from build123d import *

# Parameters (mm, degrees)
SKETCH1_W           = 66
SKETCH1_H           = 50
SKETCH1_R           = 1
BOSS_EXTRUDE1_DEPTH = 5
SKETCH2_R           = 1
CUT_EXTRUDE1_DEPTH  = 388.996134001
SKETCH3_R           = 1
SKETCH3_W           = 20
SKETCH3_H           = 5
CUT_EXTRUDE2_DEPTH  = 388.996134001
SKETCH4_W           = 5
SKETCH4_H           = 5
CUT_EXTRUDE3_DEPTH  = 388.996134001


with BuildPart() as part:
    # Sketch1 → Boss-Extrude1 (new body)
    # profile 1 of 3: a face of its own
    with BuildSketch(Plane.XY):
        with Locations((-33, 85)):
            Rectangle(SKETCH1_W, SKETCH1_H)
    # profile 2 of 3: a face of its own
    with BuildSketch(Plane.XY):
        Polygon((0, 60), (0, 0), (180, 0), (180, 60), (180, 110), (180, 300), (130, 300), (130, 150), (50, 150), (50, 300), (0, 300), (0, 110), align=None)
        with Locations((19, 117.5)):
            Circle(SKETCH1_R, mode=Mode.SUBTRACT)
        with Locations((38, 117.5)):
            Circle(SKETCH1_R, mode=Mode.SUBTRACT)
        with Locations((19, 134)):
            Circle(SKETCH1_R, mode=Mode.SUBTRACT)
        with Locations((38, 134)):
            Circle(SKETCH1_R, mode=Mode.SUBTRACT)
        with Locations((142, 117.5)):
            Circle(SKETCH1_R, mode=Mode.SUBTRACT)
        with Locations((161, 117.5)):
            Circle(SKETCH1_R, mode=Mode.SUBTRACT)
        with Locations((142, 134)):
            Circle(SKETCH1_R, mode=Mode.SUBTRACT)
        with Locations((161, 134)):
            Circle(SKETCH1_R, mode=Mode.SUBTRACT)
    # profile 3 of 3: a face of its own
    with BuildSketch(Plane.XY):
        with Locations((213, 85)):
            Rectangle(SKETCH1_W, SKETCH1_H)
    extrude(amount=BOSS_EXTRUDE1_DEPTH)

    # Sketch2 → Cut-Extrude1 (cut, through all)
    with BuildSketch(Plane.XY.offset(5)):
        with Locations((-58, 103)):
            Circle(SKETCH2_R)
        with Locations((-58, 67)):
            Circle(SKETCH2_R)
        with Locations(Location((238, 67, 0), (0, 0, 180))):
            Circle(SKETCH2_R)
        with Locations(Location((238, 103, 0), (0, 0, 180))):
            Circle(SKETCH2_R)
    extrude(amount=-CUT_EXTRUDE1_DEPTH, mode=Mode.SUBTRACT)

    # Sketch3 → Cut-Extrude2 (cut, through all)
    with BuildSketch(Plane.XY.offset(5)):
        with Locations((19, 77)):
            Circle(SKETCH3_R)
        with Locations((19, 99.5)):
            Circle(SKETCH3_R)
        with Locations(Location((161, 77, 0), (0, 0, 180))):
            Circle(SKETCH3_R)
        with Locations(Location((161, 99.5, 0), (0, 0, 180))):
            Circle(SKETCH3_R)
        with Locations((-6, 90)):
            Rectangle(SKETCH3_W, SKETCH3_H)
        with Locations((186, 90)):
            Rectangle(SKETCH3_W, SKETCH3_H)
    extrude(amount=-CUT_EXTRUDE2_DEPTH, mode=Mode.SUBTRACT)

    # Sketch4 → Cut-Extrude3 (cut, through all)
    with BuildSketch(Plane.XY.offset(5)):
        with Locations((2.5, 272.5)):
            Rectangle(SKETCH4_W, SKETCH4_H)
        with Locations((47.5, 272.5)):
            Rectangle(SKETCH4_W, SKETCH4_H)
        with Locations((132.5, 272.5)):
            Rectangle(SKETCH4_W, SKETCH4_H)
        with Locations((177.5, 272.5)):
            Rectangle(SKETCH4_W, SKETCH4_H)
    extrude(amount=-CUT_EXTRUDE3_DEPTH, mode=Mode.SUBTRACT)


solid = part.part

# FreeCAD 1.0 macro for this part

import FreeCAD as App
import Part
import Sketcher
Q = App.Units.Quantity

doc = App.newDocument("Part")
body = doc.addObject("PartDesign::Body", "Body")

sketch1 = body.newObject("Sketcher::SketchObject", "Sketch")
sketch1.AttachmentSupport = (doc.getObject("XY_Plane"), [""])
sketch1.MapMode = "FlatFace"
sketch1.addGeometry([
    Part.LineSegment(App.Vector(-66, 110, 0), App.Vector(-66, 60, 0)),
    Part.LineSegment(App.Vector(-66, 60, 0), App.Vector(0, 60, 0)),
    Part.LineSegment(App.Vector(0, 60, 0), App.Vector(0, 0, 0)),
    Part.LineSegment(App.Vector(0, 0, 0), App.Vector(180, 0, 0)),
    Part.LineSegment(App.Vector(180, 0, 0), App.Vector(180, 60, 0)),
    Part.LineSegment(App.Vector(180, 60, 0), App.Vector(246, 60, 0)),
    Part.LineSegment(App.Vector(246, 60, 0), App.Vector(246, 110, 0)),
    Part.LineSegment(App.Vector(246, 110, 0), App.Vector(180, 110, 0)),
    Part.LineSegment(App.Vector(180, 110, 0), App.Vector(180, 300, 0)),
    Part.LineSegment(App.Vector(180, 300, 0), App.Vector(130, 300, 0)),
    Part.LineSegment(App.Vector(130, 300, 0), App.Vector(130, 150, 0)),
    Part.LineSegment(App.Vector(130, 150, 0), App.Vector(50, 150, 0)),
    Part.LineSegment(App.Vector(50, 150, 0), App.Vector(50, 300, 0)),
    Part.LineSegment(App.Vector(50, 300, 0), App.Vector(0, 300, 0)),
    Part.LineSegment(App.Vector(0, 300, 0), App.Vector(0, 110, 0)),
    Part.LineSegment(App.Vector(0, 110, 0), App.Vector(-66, 110, 0)),
    Part.Circle(App.Vector(161, 134, 0), App.Vector(0, 0, 1), 1),
    Part.Circle(App.Vector(19, 117.5, 0), App.Vector(0, 0, 1), 1),
    Part.Circle(App.Vector(38, 117.5, 0), App.Vector(0, 0, 1), 1),
    Part.Circle(App.Vector(142, 117.5, 0), App.Vector(0, 0, 1), 1),
    Part.Circle(App.Vector(161, 117.5, 0), App.Vector(0, 0, 1), 1),
    Part.Circle(App.Vector(19, 134, 0), App.Vector(0, 0, 1), 1),
    Part.Circle(App.Vector(38, 134, 0), App.Vector(0, 0, 1), 1),
    Part.Circle(App.Vector(142, 134, 0), App.Vector(0, 0, 1), 1),
], False)
sketch1.addConstraint([
    Sketcher.Constraint("Coincident", 0, 2, 1, 1),
    Sketcher.Constraint("Coincident", 1, 2, 2, 1),
    Sketcher.Constraint("Coincident", 2, 2, 3, 1),
    Sketcher.Constraint("Coincident", 3, 2, 4, 1),
    Sketcher.Constraint("Coincident", 4, 2, 5, 1),
    Sketcher.Constraint("Coincident", 5, 2, 6, 1),
    Sketcher.Constraint("Coincident", 6, 2, 7, 1),
    Sketcher.Constraint("Coincident", 7, 2, 8, 1),
    Sketcher.Constraint("Coincident", 8, 2, 9, 1),
    Sketcher.Constraint("Coincident", 9, 2, 10, 1),
    Sketcher.Constraint("Coincident", 10, 2, 11, 1),
    Sketcher.Constraint("Coincident", 11, 2, 12, 1),
    Sketcher.Constraint("Coincident", 12, 2, 13, 1),
    Sketcher.Constraint("Coincident", 13, 2, 14, 1),
    Sketcher.Constraint("Coincident", 14, 2, 15, 1),
    Sketcher.Constraint("Coincident", 15, 2, 0, 1),
    Sketcher.Constraint("Vertical", 0),
    Sketcher.Constraint("Horizontal", 1),
    Sketcher.Constraint("Vertical", 2),
    Sketcher.Constraint("Horizontal", 3),
    Sketcher.Constraint("Vertical", 4),
    Sketcher.Constraint("Horizontal", 5),
    Sketcher.Constraint("Vertical", 6),
    Sketcher.Constraint("Horizontal", 7),
    Sketcher.Constraint("Vertical", 8),
    Sketcher.Constraint("Horizontal", 9),
    Sketcher.Constraint("Vertical", 10),
    Sketcher.Constraint("Horizontal", 11),
    Sketcher.Constraint("Vertical", 12),
    Sketcher.Constraint("Horizontal", 13),
    Sketcher.Constraint("Vertical", 14),
    Sketcher.Constraint("Horizontal", 15),
    Sketcher.Constraint("Coincident", 2, 2, -1, 1),
    Sketcher.Constraint("Equal", 16, 17),
    Sketcher.Constraint("Equal", 17, 18),
    Sketcher.Constraint("Equal", 18, 19),
    Sketcher.Constraint("Equal", 19, 20),
    Sketcher.Constraint("Equal", 20, 21),
    Sketcher.Constraint("Equal", 21, 22),
    Sketcher.Constraint("Equal", 22, 23),
    Sketcher.Constraint("PointOnObject", 13, 2, -2),
    Sketcher.Constraint("Horizontal", 17, 3, 18, 3),
    Sketcher.Constraint("Horizontal", 18, 3, 19, 3),
    Sketcher.Constraint("Horizontal", 19, 3, 20, 3),
    Sketcher.Constraint("Horizontal", 16, 3, 21, 3),
    Sketcher.Constraint("Horizontal", 21, 3, 22, 3),
    Sketcher.Constraint("Horizontal", 22, 3, 23, 3),
    Sketcher.Constraint("Horizontal", 1, 2, 4, 2),
    Sketcher.Constraint("Horizontal", 9, 2, 12, 2),
    Sketcher.Constraint("Horizontal", 7, 2, 14, 2),
    Sketcher.Constraint("Vertical", 16, 3, 20, 3),
    Sketcher.Constraint("Vertical", 17, 3, 21, 3),
    Sketcher.Constraint("Vertical", 18, 3, 22, 3),
    Sketcher.Constraint("Vertical", 19, 3, 23, 3),
    Sketcher.Constraint("Vertical", 4, 2, 7, 2),
    Sketcher.Constraint("Equal", 1, 5),
    Sketcher.Constraint("Equal", 9, 13),
    Sketcher.Constraint("Equal", 13, 0),
    Sketcher.Constraint("Diameter", 16, Q("2 mm")),
    Sketcher.Constraint("DistanceX", 1, 1, 1, 2, Q("66 mm")),
    Sketcher.Constraint("DistanceX", 3, 1, 3, 2, Q("180 mm")),
    Sketcher.Constraint("DistanceX", 9, 2, 9, 1, Q("50 mm")),
    Sketcher.Constraint("DistanceY", 2, 2, 2, 1, Q("60 mm")),
    Sketcher.Constraint("DistanceY", 8, 1, 8, 2, Q("190 mm")),
    Sketcher.Constraint("DistanceY", 10, 2, 10, 1, Q("150 mm")),
    Sketcher.Constraint("DistanceX", -1, 1, 16, 3, Q("161 mm")),
    Sketcher.Constraint("DistanceY", -1, 1, 16, 3, Q("134 mm")),
    Sketcher.Constraint("DistanceX", -1, 1, 17, 3, Q("19 mm")),
    Sketcher.Constraint("DistanceX", -1, 1, 18, 3, Q("38 mm")),
    Sketcher.Constraint("DistanceX", -1, 1, 19, 3, Q("142 mm")),
    Sketcher.Constraint("DistanceY", -1, 1, 17, 3, Q("117.5 mm")),
])
pad1 = body.newObject("PartDesign::Pad", "Pad")
pad1.Profile = sketch1
pad1.Length = 5

sketch2 = body.newObject("Sketcher::SketchObject", "Sketch001")
sketch2.AttachmentSupport = (doc.getObject("XY_Plane"), [""])
sketch2.MapMode = "FlatFace"
sketch2.AttachmentOffset = App.Placement(App.Vector(0, 0, 5), App.Rotation())
sketch2.addGeometry([
    Part.Circle(App.Vector(-58, 103, 0), App.Vector(0, 0, 1), 1),
    Part.Circle(App.Vector(-58, 67, 0), App.Vector(0, 0, 1), 1),
    Part.Circle(App.Vector(238, 67, 0), App.Vector(0, 0, 1), 1),
    Part.Circle(App.Vector(238, 103, 0), App.Vector(0, 0, 1), 1),
], False)
sketch2.addConstraint([
    Sketcher.Constraint("Equal", 0, 1),
    Sketcher.Constraint("Equal", 1, 2),
    Sketcher.Constraint("Equal", 2, 3),
    Sketcher.Constraint("Horizontal", 1, 3, 2, 3),
    Sketcher.Constraint("Horizontal", 0, 3, 3, 3),
    Sketcher.Constraint("Vertical", 0, 3, 1, 3),
    Sketcher.Constraint("Vertical", 2, 3, 3, 3),
    Sketcher.Constraint("Diameter", 0, Q("2 mm")),
    Sketcher.Constraint("DistanceX", 0, 3, -1, 1, Q("58 mm")),
    Sketcher.Constraint("DistanceY", -1, 1, 0, 3, Q("103 mm")),
    Sketcher.Constraint("DistanceY", -1, 1, 1, 3, Q("67 mm")),
    Sketcher.Constraint("DistanceX", -1, 1, 2, 3, Q("238 mm")),
])
pocket1 = body.newObject("PartDesign::Pocket", "Pocket")
pocket1.Profile = sketch2
pocket1.Type = "ThroughAll"

sketch3 = body.newObject("Sketcher::SketchObject", "Sketch002")
sketch3.AttachmentSupport = (doc.getObject("XY_Plane"), [""])
sketch3.MapMode = "FlatFace"
sketch3.AttachmentOffset = App.Placement(App.Vector(0, 0, 5), App.Rotation())
sketch3.addGeometry([
    Part.Circle(App.Vector(19, 77, 0), App.Vector(0, 0, 1), 1),
    Part.Circle(App.Vector(19, 99.5, 0), App.Vector(0, 0, 1), 1),
    Part.Circle(App.Vector(161, 77, 0), App.Vector(0, 0, 1), 1),
    Part.Circle(App.Vector(161, 99.5, 0), App.Vector(0, 0, 1), 1),
    Part.LineSegment(App.Vector(-16, 92.5, 0), App.Vector(-16, 87.5, 0)),
    Part.LineSegment(App.Vector(-16, 87.5, 0), App.Vector(4, 87.5, 0)),
    Part.LineSegment(App.Vector(4, 87.5, 0), App.Vector(4, 92.5, 0)),
    Part.LineSegment(App.Vector(4, 92.5, 0), App.Vector(-16, 92.5, 0)),
    Part.LineSegment(App.Vector(176, 92.5, 0), App.Vector(176, 87.5, 0)),
    Part.LineSegment(App.Vector(176, 87.5, 0), App.Vector(196, 87.5, 0)),
    Part.LineSegment(App.Vector(196, 87.5, 0), App.Vector(196, 92.5, 0)),
    Part.LineSegment(App.Vector(196, 92.5, 0), App.Vector(176, 92.5, 0)),
], False)
sketch3.addConstraint([
    Sketcher.Constraint("Coincident", 4, 2, 5, 1),
    Sketcher.Constraint("Coincident", 5, 2, 6, 1),
    Sketcher.Constraint("Coincident", 6, 2, 7, 1),
    Sketcher.Constraint("Coincident", 7, 2, 4, 1),
    Sketcher.Constraint("Coincident", 8, 2, 9, 1),
    Sketcher.Constraint("Coincident", 9, 2, 10, 1),
    Sketcher.Constraint("Coincident", 10, 2, 11, 1),
    Sketcher.Constraint("Coincident", 11, 2, 8, 1),
    Sketcher.Constraint("Vertical", 4),
    Sketcher.Constraint("Horizontal", 5),
    Sketcher.Constraint("Vertical", 6),
    Sketcher.Constraint("Horizontal", 7),
    Sketcher.Constraint("Vertical", 8),
    Sketcher.Constraint("Horizontal", 9),
    Sketcher.Constraint("Vertical", 10),
    Sketcher.Constraint("Horizontal", 11),
    Sketcher.Constraint("Equal", 0, 1),
    Sketcher.Constraint("Equal", 1, 2),
    Sketcher.Constraint("Equal", 2, 3),
    Sketcher.Constraint("Horizontal", 0, 3, 2, 3),
    Sketcher.Constraint("Horizontal", 1, 3, 3, 3),
    Sketcher.Constraint("Horizontal", 5, 2, 8, 2),
    Sketcher.Constraint("Horizontal", 7, 2, 10, 2),
    Sketcher.Constraint("Vertical", 0, 3, 1, 3),
    Sketcher.Constraint("Vertical", 2, 3, 3, 3),
    Sketcher.Constraint("Equal", 7, 9),
    Sketcher.Constraint("Diameter", 0, Q("2 mm")),
    Sketcher.Constraint("DistanceX", 5, 1, 5, 2, Q("20 mm")),
    Sketcher.Constraint("DistanceY", 4, 2, 4, 1, Q("5 mm")),
    Sketcher.Constraint("DistanceX", -1, 1, 0, 3, Q("19 mm")),
    Sketcher.Constraint("DistanceY", -1, 1, 0, 3, Q("77 mm")),
    Sketcher.Constraint("DistanceX", -1, 1, 2, 3, Q("161 mm")),
    Sketcher.Constraint("DistanceX", 4, 2, -1, 1, Q("16 mm")),
    Sketcher.Constraint("DistanceX", -1, 1, 8, 2, Q("176 mm")),
    Sketcher.Constraint("DistanceY", 4, 2, 1, 3, Q("12 mm")),
    Sketcher.Constraint("DistanceY", -1, 1, 1, 3, Q("99.5 mm")),
])
pocket2 = body.newObject("PartDesign::Pocket", "Pocket001")
pocket2.Profile = sketch3
pocket2.Type = "ThroughAll"

sketch4 = body.newObject("Sketcher::SketchObject", "Sketch003")
sketch4.AttachmentSupport = (doc.getObject("XY_Plane"), [""])
sketch4.MapMode = "FlatFace"
sketch4.AttachmentOffset = App.Placement(App.Vector(0, 0, 5), App.Rotation())
sketch4.addGeometry([
    Part.LineSegment(App.Vector(0, 275, 0), App.Vector(0, 270, 0)),
    Part.LineSegment(App.Vector(0, 270, 0), App.Vector(5, 270, 0)),
    Part.LineSegment(App.Vector(5, 270, 0), App.Vector(5, 275, 0)),
    Part.LineSegment(App.Vector(5, 275, 0), App.Vector(0, 275, 0)),
    Part.LineSegment(App.Vector(45, 275, 0), App.Vector(45, 270, 0)),
    Part.LineSegment(App.Vector(45, 270, 0), App.Vector(50, 270, 0)),
    Part.LineSegment(App.Vector(50, 270, 0), App.Vector(50, 275, 0)),
    Part.LineSegment(App.Vector(50, 275, 0), App.Vector(45, 275, 0)),
    Part.LineSegment(App.Vector(130, 275, 0), App.Vector(130, 270, 0)),
    Part.LineSegment(App.Vector(130, 270, 0), App.Vector(135, 270, 0)),
    Part.LineSegment(App.Vector(135, 270, 0), App.Vector(135, 275, 0)),
    Part.LineSegment(App.Vector(135, 275, 0), App.Vector(130, 275, 0)),
    Part.LineSegment(App.Vector(175, 275, 0), App.Vector(175, 270, 0)),
    Part.LineSegment(App.Vector(175, 270, 0), App.Vector(180, 270, 0)),
    Part.LineSegment(App.Vector(180, 270, 0), App.Vector(180, 275, 0)),
    Part.LineSegment(App.Vector(180, 275, 0), App.Vector(175, 275, 0)),
], False)
sketch4.addConstraint([
    Sketcher.Constraint("Coincident", 0, 2, 1, 1),
    Sketcher.Constraint("Coincident", 1, 2, 2, 1),
    Sketcher.Constraint("Coincident", 2, 2, 3, 1),
    Sketcher.Constraint("Coincident", 3, 2, 0, 1),
    Sketcher.Constraint("Coincident", 4, 2, 5, 1),
    Sketcher.Constraint("Coincident", 5, 2, 6, 1),
    Sketcher.Constraint("Coincident", 6, 2, 7, 1),
    Sketcher.Constraint("Coincident", 7, 2, 4, 1),
    Sketcher.Constraint("Coincident", 8, 2, 9, 1),
    Sketcher.Constraint("Coincident", 9, 2, 10, 1),
    Sketcher.Constraint("Coincident", 10, 2, 11, 1),
    Sketcher.Constraint("Coincident", 11, 2, 8, 1),
    Sketcher.Constraint("Coincident", 12, 2, 13, 1),
    Sketcher.Constraint("Coincident", 13, 2, 14, 1),
    Sketcher.Constraint("Coincident", 14, 2, 15, 1),
    Sketcher.Constraint("Coincident", 15, 2, 12, 1),
    Sketcher.Constraint("Vertical", 0),
    Sketcher.Constraint("Horizontal", 1),
    Sketcher.Constraint("Vertical", 2),
    Sketcher.Constraint("Horizontal", 3),
    Sketcher.Constraint("Vertical", 4),
    Sketcher.Constraint("Horizontal", 5),
    Sketcher.Constraint("Vertical", 6),
    Sketcher.Constraint("Horizontal", 7),
    Sketcher.Constraint("Vertical", 8),
    Sketcher.Constraint("Horizontal", 9),
    Sketcher.Constraint("Vertical", 10),
    Sketcher.Constraint("Horizontal", 11),
    Sketcher.Constraint("Vertical", 12),
    Sketcher.Constraint("Horizontal", 13),
    Sketcher.Constraint("Vertical", 14),
    Sketcher.Constraint("Horizontal", 15),
    Sketcher.Constraint("PointOnObject", 0, 2, -2),
    Sketcher.Constraint("Horizontal", 1, 2, 4, 2),
    Sketcher.Constraint("Horizontal", 3, 2, 6, 2),
    Sketcher.Constraint("Horizontal", 5, 2, 8, 2),
    Sketcher.Constraint("Horizontal", 7, 2, 10, 2),
    Sketcher.Constraint("Horizontal", 9, 2, 12, 2),
    Sketcher.Constraint("Horizontal", 11, 2, 14, 2),
    Sketcher.Constraint("Equal", 3, 5),
    Sketcher.Constraint("Equal", 7, 9),
    Sketcher.Constraint("Equal", 11, 13),
    Sketcher.Constraint("Equal", 15, 0),
    Sketcher.Constraint("DistanceX", 1, 1, 1, 2, Q("5 mm")),
    Sketcher.Constraint("DistanceY", -1, 1, 0, 2, Q("270 mm")),
    Sketcher.Constraint("DistanceX", -1, 1, 4, 2, Q("45 mm")),
    Sketcher.Constraint("DistanceX", -1, 1, 8, 2, Q("130 mm")),
    Sketcher.Constraint("DistanceX", -1, 1, 12, 2, Q("175 mm")),
])
pocket3 = body.newObject("PartDesign::Pocket", "Pocket002")
pocket3.Profile = sketch4
pocket3.Type = "ThroughAll"

doc.recompute()
